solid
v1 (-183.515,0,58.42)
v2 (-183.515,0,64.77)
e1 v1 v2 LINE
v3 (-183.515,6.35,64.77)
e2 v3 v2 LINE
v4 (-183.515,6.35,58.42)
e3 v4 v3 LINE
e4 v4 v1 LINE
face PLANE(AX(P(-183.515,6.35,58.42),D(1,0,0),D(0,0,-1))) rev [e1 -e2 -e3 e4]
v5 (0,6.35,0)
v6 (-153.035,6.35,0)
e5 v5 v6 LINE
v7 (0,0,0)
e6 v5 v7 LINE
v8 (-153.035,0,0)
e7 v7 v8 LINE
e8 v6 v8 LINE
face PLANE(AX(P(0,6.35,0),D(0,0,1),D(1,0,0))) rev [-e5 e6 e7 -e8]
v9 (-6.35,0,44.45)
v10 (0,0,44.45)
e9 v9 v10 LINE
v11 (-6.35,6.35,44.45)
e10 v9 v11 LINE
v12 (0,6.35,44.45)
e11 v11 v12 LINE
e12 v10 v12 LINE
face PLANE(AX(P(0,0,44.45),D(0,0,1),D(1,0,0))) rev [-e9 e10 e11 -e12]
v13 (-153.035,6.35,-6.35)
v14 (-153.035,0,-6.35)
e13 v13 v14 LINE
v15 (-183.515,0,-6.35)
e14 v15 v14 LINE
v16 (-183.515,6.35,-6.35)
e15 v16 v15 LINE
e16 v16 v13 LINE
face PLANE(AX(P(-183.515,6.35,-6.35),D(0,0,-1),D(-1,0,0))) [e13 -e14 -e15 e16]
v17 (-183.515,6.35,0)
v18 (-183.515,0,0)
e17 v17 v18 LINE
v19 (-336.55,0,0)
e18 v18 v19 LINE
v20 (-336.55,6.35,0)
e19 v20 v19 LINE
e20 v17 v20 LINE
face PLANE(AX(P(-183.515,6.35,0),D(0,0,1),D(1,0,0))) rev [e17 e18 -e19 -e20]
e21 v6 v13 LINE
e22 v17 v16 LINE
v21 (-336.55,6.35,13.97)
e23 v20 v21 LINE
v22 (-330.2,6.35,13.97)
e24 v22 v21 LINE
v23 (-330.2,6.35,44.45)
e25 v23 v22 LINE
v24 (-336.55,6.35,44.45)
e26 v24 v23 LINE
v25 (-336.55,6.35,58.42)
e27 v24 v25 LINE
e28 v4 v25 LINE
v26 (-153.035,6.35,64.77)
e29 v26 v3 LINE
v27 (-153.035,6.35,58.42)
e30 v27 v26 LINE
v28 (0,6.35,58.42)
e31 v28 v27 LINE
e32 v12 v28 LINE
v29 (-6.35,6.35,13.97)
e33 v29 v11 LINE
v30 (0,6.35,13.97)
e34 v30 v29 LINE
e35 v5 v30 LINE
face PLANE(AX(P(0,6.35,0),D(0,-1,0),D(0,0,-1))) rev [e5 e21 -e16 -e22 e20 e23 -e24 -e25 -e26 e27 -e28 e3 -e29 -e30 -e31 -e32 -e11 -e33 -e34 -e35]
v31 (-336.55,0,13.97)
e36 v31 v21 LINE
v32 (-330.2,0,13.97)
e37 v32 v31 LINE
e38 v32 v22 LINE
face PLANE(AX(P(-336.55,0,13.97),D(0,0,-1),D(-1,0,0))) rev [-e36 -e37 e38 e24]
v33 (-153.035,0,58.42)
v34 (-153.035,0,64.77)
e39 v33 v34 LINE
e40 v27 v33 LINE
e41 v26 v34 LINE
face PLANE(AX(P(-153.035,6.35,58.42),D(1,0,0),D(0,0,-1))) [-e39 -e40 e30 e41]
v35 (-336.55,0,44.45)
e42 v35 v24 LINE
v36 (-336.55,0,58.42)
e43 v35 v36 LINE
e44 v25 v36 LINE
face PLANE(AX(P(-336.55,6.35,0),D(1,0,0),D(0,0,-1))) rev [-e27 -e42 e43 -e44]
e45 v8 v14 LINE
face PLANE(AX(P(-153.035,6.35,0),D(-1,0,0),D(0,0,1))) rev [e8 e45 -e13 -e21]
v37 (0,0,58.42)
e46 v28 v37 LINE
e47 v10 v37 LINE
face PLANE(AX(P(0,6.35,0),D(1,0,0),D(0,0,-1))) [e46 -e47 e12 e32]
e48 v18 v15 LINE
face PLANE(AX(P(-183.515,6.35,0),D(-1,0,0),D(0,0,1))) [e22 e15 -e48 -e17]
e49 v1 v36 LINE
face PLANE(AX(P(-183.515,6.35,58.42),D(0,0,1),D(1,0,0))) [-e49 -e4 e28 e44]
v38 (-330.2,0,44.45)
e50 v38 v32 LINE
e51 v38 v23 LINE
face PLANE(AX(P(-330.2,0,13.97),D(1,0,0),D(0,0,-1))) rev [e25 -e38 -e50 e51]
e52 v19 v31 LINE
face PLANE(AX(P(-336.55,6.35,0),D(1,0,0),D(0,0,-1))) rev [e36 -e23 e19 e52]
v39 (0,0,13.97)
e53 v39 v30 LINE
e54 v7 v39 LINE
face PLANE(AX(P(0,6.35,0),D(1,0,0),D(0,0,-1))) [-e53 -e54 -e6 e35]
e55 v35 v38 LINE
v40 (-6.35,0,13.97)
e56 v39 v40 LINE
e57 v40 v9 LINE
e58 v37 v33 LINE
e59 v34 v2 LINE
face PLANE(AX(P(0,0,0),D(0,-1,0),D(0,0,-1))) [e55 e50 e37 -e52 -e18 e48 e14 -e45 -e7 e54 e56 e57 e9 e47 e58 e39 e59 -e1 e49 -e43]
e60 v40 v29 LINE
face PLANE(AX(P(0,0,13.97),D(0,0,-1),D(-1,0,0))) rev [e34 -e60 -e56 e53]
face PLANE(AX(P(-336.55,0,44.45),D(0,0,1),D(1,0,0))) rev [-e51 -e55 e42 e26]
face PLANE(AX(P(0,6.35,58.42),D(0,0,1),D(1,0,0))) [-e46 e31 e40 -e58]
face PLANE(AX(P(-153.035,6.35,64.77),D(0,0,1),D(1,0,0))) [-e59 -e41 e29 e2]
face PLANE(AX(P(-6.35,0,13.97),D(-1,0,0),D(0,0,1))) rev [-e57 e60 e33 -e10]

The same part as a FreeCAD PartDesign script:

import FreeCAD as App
import Part
import Sketcher

V = App.Vector
Q = App.Units.Quantity


def add_polygon(sketch, points):
    """Adds a closed chain of lines whose ends are joined by coincident constraints."""
    first, n = sketch.GeometryCount, len(points)
    for a, b in zip(points, points[1:] + points[:1]):
        sketch.addGeometry(Part.LineSegment(App.Vector(*a, 0), App.Vector(*b, 0)), False)
    for i in range(n):
        sketch.addConstraint(Sketcher.Constraint("Coincident", first + i, 2, first + (i + 1) % n, 1))

doc = App.newDocument("Part")
body = doc.addObject("PartDesign::Body", "Body")

# Sketch on XZ plane
sketch1 = doc.addObject("Sketcher::SketchObject", "Sketch")
body.addObject(sketch1)
sketch1.AttachmentSupport = (doc.XZ_Plane, [""])
sketch1.MapMode = "FlatFace"
add_polygon(sketch1, [(-183.515, 0), (-336.55, 0), (-336.55, 58.42), (-183.515, 58.42), (-183.515, 64.77), (-153.035, 64.77), (-153.035, 58.42), (0, 58.42), (0, 0), (-153.035, 0), (-153.035, -6.35), (-183.515, -6.35)])  # lines 0-11
sketch1.addConstraint([
    Sketcher.Constraint("Horizontal", 0),
    Sketcher.Constraint("Vertical", 1),
    Sketcher.Constraint("Horizontal", 2),
    Sketcher.Constraint("Vertical", 3),
    Sketcher.Constraint("Horizontal", 4),
    Sketcher.Constraint("Vertical", 5),
    Sketcher.Constraint("Horizontal", 6),
    Sketcher.Constraint("Vertical", 7),
    Sketcher.Constraint("Horizontal", 8),
    Sketcher.Constraint("Vertical", 9),
    Sketcher.Constraint("Horizontal", 10),
    Sketcher.Constraint("Vertical", 11),
    Sketcher.Constraint("Coincident", 7, 2, -1, 1),
    Sketcher.Constraint("PointOnObject", 0, 2, -1),
    Sketcher.Constraint("Horizontal", 2, 2, 5, 2),
    Sketcher.Constraint("Vertical", 5, 2, 8, 2),
    Sketcher.Constraint("Vertical", 3, 2, 10, 2),
    Sketcher.Constraint("Equal", 2, 6),
    Sketcher.Constraint("Equal", 5, 9),
    Sketcher.Constraint("DistanceX", 4, 1, 4, 2, Q("1.2 in")),
    Sketcher.Constraint("DistanceY", 1, 1, 1, 2, Q("2.3 in")),
    Sketcher.Constraint("DistanceY", 3, 1, 3, 2, Q("0.25 in")),
    Sketcher.Constraint("DistanceX", 0, 2, 0, 1, Q("6.025 in")),
])
pad1 = doc.addObject("PartDesign::Pad", "Pad")
body.addObject(pad1)
pad1.Profile = sketch1
pad1.Length = Q("0.25 in")
pad1.Reversed = True

# Sketch on XZ plane
sketch2 = doc.addObject("Sketcher::SketchObject", "Sketch001")
body.addObject(sketch2)
sketch2.AttachmentSupport = (doc.XZ_Plane, [""])
sketch2.MapMode = "FlatFace"
sketch2.AttachmentOffset = App.Placement(V(0, 0, -0.25 * 25.4), App.Rotation())
add_polygon(sketch2, [(-336.55, 13.97), (-336.55, 44.45), (-330.2, 44.45), (-330.2, 13.97)])  # lines 0-3
add_polygon(sketch2, [(-6.35, 13.97), (-6.35, 44.45), (0, 44.45), (0, 13.97)])  # lines 4-7
sketch2.addConstraint([
    Sketcher.Constraint("Vertical", 0),
    Sketcher.Constraint("Horizontal", 1),
    Sketcher.Constraint("Vertical", 2),
    Sketcher.Constraint("Horizontal", 3),
    Sketcher.Constraint("Vertical", 4),
    Sketcher.Constraint("Horizontal", 5),
    Sketcher.Constraint("Vertical", 6),
    Sketcher.Constraint("Horizontal", 7),
    Sketcher.Constraint("PointOnObject", 5, 2, -2),
    Sketcher.Constraint("Horizontal", 1, 2, 4, 2),
    Sketcher.Constraint("Horizontal", 3, 2, 6, 2),
    Sketcher.Constraint("Equal", 3, 5),
    Sketcher.Constraint("DistanceY", 0, 1, 0, 2, Q("1.2 in")),
    Sketcher.Constraint("DistanceX", 1, 2, -1, 1, Q("13 in")),
    Sketcher.Constraint("DistanceX", 1, 1, 1, 2, Q("0.25 in")),
    Sketcher.Constraint("DistanceY", -1, 1, 0, 2, Q("1.75 in")),
])
pocket1 = doc.addObject("PartDesign::Pocket", "Pocket")
body.addObject(pocket1)
pocket1.Profile = sketch2
pocket1.Type = "ThroughAll"
pocket1.Reversed = True

doc.recompute()
